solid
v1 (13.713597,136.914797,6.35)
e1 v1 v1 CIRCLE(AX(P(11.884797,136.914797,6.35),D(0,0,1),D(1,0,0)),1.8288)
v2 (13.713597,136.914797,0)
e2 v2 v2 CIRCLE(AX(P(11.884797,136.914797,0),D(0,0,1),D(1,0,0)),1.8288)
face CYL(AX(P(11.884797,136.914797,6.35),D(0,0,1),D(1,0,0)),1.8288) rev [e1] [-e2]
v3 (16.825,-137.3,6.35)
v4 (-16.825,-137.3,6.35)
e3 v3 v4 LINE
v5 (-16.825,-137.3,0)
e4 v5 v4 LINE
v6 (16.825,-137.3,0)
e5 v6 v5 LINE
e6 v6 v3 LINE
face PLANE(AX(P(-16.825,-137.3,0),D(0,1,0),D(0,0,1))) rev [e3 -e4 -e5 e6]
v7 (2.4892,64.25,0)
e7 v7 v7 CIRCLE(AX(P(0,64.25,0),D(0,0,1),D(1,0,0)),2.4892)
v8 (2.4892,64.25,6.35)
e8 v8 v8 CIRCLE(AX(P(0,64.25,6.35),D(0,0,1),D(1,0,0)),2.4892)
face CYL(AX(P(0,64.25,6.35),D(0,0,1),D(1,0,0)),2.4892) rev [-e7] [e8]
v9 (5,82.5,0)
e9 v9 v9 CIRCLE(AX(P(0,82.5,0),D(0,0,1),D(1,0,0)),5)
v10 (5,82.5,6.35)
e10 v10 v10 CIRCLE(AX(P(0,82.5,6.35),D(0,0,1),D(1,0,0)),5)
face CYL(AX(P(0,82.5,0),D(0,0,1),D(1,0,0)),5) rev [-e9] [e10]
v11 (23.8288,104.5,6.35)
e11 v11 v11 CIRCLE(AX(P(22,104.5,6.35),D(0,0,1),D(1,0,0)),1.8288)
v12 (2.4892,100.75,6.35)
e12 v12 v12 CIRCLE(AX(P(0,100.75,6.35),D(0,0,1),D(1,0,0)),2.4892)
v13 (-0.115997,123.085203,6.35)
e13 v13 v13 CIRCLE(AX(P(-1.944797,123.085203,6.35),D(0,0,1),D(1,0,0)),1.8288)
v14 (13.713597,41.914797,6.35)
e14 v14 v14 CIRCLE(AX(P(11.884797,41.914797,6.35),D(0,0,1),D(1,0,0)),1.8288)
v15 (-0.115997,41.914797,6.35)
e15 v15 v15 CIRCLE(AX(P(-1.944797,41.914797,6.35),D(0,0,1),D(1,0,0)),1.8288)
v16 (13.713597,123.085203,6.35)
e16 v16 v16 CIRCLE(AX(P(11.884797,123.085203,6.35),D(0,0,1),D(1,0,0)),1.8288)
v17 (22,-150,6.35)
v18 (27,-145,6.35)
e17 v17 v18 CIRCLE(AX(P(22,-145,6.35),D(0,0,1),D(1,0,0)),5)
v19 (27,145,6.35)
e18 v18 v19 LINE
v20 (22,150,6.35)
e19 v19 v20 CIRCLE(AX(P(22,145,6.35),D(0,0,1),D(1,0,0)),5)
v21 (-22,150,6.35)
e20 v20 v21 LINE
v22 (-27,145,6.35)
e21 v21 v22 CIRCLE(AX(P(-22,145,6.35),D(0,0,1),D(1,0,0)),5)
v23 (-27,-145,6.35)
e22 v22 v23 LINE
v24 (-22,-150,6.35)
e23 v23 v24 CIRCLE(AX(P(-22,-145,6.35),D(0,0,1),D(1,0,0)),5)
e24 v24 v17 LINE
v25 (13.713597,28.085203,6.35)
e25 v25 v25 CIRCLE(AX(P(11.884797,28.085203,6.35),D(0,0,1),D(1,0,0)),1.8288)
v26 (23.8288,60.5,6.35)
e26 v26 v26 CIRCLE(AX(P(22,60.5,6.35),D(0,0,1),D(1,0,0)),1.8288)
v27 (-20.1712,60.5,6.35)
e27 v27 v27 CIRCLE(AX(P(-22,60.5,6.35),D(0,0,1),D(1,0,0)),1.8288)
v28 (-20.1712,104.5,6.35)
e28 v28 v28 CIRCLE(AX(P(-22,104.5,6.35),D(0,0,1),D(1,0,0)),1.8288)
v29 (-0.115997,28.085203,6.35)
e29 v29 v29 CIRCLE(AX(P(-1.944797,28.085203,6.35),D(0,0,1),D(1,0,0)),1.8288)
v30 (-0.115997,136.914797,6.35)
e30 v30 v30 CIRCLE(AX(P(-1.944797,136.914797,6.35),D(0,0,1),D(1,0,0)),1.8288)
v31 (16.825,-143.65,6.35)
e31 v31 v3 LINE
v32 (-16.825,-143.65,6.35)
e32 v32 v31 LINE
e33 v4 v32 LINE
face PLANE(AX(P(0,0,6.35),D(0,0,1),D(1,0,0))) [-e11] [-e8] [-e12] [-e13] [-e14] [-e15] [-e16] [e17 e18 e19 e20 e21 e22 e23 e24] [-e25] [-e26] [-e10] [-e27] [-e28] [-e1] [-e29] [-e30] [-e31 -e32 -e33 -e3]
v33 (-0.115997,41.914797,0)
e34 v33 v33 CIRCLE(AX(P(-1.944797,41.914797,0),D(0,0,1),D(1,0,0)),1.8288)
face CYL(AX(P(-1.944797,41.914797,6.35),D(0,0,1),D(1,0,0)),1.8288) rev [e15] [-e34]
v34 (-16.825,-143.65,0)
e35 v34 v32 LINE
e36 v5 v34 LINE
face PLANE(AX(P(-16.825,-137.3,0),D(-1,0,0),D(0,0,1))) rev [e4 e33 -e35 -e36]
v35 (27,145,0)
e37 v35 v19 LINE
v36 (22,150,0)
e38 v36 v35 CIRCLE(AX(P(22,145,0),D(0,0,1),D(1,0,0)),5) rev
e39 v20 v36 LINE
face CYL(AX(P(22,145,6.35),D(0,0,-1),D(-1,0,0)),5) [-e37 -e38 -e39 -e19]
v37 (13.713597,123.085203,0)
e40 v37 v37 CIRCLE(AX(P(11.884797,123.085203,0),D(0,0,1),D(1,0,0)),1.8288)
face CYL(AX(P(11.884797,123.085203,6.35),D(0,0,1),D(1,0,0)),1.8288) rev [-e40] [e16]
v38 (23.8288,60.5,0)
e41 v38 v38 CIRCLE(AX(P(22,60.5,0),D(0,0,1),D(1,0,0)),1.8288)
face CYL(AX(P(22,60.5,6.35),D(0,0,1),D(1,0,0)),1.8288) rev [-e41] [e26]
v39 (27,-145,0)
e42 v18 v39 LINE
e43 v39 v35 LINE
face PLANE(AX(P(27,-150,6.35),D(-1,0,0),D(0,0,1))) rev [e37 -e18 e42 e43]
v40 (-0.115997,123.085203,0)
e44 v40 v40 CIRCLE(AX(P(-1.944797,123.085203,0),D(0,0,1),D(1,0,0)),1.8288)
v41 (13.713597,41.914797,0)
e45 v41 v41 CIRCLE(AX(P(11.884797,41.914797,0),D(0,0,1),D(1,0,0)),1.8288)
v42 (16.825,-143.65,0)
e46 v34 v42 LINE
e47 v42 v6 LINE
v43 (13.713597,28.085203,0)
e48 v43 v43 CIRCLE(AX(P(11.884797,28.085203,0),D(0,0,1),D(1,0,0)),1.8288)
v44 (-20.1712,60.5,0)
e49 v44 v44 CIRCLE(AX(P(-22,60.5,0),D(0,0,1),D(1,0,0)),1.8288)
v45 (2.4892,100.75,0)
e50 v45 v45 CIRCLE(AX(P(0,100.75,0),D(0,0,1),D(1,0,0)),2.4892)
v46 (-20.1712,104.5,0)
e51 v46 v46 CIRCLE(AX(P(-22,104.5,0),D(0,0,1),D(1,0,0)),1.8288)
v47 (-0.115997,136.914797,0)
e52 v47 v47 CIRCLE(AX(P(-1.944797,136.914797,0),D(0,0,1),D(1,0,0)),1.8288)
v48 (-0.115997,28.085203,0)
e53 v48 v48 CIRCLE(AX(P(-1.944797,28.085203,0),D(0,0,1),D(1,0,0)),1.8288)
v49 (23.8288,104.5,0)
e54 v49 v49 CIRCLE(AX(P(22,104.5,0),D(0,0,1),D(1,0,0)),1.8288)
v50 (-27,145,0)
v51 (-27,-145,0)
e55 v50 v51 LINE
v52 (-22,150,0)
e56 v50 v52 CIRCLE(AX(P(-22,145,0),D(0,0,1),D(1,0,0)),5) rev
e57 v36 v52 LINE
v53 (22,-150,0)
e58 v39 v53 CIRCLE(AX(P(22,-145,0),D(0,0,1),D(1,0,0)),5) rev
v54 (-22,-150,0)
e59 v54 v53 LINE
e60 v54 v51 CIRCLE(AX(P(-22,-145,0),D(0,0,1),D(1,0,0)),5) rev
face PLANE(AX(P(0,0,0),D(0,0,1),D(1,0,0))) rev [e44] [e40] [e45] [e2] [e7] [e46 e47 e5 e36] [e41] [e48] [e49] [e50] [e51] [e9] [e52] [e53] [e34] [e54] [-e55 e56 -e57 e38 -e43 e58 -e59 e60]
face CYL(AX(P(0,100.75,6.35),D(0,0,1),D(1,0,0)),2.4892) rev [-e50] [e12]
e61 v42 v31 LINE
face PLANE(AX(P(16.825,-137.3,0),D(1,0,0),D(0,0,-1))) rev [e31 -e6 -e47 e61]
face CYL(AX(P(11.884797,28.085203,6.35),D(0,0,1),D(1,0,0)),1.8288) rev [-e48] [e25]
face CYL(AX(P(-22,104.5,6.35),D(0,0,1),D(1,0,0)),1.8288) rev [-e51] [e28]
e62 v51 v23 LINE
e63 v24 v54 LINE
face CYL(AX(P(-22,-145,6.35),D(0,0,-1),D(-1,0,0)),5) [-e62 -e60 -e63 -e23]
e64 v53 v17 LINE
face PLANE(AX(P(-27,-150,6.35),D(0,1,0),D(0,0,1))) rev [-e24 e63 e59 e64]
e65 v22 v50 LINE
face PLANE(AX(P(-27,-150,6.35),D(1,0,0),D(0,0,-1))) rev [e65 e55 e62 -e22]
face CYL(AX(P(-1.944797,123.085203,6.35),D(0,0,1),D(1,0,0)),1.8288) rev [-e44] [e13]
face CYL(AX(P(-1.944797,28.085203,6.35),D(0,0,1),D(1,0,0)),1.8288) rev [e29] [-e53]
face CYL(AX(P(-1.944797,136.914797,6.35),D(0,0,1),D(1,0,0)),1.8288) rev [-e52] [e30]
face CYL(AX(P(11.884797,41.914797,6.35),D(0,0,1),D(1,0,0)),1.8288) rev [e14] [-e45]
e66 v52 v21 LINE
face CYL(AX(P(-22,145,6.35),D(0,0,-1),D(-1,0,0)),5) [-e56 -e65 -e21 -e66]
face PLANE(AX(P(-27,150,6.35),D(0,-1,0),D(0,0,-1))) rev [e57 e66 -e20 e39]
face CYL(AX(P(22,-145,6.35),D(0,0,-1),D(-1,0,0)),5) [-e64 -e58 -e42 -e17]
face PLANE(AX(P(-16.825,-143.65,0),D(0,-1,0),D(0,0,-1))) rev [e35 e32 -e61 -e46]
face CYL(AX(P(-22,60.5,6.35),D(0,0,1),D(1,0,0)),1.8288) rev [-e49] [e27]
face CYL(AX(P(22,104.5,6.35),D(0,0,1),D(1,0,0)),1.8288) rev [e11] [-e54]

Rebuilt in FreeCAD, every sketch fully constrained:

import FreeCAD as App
import Part
import Sketcher

V = App.Vector
Q = App.Units.Quantity


def edges_at(feature, points):
    """Names of the edges that pass closest to the given points."""
    edges = feature.Shape.Edges
    near = lambda p: min(range(len(edges)), key=lambda i: edges[i].distToShape(Part.Vertex(*p))[0])
    return sorted({f"Edge{near(p) + 1}" for p in points})


def add_polygon(sketch, points):
    """Adds a closed chain of lines whose ends are joined by coincident constraints."""
    first, n = sketch.GeometryCount, len(points)
    for a, b in zip(points, points[1:] + points[:1]):
        sketch.addGeometry(Part.LineSegment(App.Vector(*a, 0), App.Vector(*b, 0)), False)
    for i in range(n):
        sketch.addConstraint(Sketcher.Constraint("Coincident", first + i, 2, first + (i + 1) % n, 1))

doc = App.newDocument("Part")
body = doc.addObject("PartDesign::Body", "Body")

# Sketch on XY plane
sketch1 = body.newObject("Sketcher::SketchObject", "Sketch")
sketch1.AttachmentSupport = (doc.getObject("XY_Plane"), [""])
sketch1.MapMode = "FlatFace"
add_polygon(sketch1, [(-27, 150), (-27, -150), (27, -150), (27, 150)])  # lines 0-3
sketch1.addConstraint(Sketcher.Constraint("Vertical", 0))
sketch1.addConstraint(Sketcher.Constraint("Horizontal", 1))
sketch1.addConstraint(Sketcher.Constraint("Vertical", 2))
sketch1.addConstraint(Sketcher.Constraint("Horizontal", 3))
sketch1.addConstraint(Sketcher.Constraint("Symmetric", 0, 2, 2, 2, -1, 1))
sketch1.addConstraint(Sketcher.Constraint("DistanceX", 1, 1, 1, 2, Q("54 mm")))
sketch1.addConstraint(Sketcher.Constraint("DistanceY", 0, 2, 0, 1, Q("300 mm")))
pad1 = body.newObject("PartDesign::Pad", "Pad")
pad1.Profile = sketch1
pad1.Length = 6.35
doc.recompute()

fillet = body.newObject("PartDesign::Fillet", "Fillet")
fillet.Base = (pad1, edges_at(pad1, [
    (-27, -150, 3.175),
    (-27, 150, 3.175),
    (27, 150, 3.175),
    (27, -150, 3.175),
]))
fillet.Radius = 5

# Sketch on XY plane
sketch2 = body.newObject("Sketcher::SketchObject", "Sketch001")
sketch2.AttachmentSupport = (doc.getObject("XY_Plane"), [""])
sketch2.MapMode = "FlatFace"
sketch2.AttachmentOffset = App.Placement(V(0, 0, 6.35), App.Rotation())
sketch2.addGeometry(Part.Circle(V(0, 82, 0), V(0, 0, 1), 5), False)
sketch2.addConstraint(Sketcher.Constraint("PointOnObject", 0, 3, -2))
sketch2.addConstraint(Sketcher.Constraint("Diameter", 0, Q("10 mm")))
sketch2.addConstraint(Sketcher.Constraint("DistanceY", -1, 1, 0, 3, Q("82.5 mm")))
pocket1 = body.newObject("PartDesign::Pocket", "Pocket")
pocket1.Profile = sketch2
pocket1.Type = "ThroughAll"

# Sketch on XY plane
sketch3 = body.newObject("Sketcher::SketchObject", "Sketch002")
sketch3.AttachmentSupport = (doc.getObject("XY_Plane"), [""])
sketch3.MapMode = "FlatFace"
sketch3.AttachmentOffset = App.Placement(V(0, 0, 6.35), App.Rotation())
sketch3.addGeometry(Part.Circle(V(-22, 104.5, 0), V(0, 0, 1), 1.8), False)
sketch3.addGeometry(Part.Circle(V(-22, 60.5, 0), V(0, 0, 1), 1.8), False)
sketch3.addGeometry(Part.Circle(V(22, 60.5, 0), V(0, 0, 1), 1.8), False)
sketch3.addGeometry(Part.Circle(V(22, 104.5, 0), V(0, 0, 1), 1.8), False)
sketch3.addGeometry(Part.Circle(V(-1.9, 123.1, 0), V(0, 0, 1), 1.8), False)
sketch3.addGeometry(Part.Circle(V(-1.9, 136.9, 0), V(0, 0, 1), 1.8), False)
sketch3.addGeometry(Part.Circle(V(11.9, 136.9, 0), V(0, 0, 1), 1.8), False)
sketch3.addGeometry(Part.Circle(V(11.9, 123.1, 0), V(0, 0, 1), 1.8), False)
sketch3.addGeometry(Part.Circle(V(-1.9, 41.9, 0), V(0, 0, 1), 1.8), False)
sketch3.addGeometry(Part.Circle(V(11.9, 41.9, 0), V(0, 0, 1), 1.8), False)
sketch3.addGeometry(Part.Circle(V(11.9, 28.1, 0), V(0, 0, 1), 1.8), False)
sketch3.addGeometry(Part.Circle(V(-1.9, 28.1, 0), V(0, 0, 1), 1.8), False)
sketch3.addConstraint(Sketcher.Constraint("Equal", 0, 1))
sketch3.addConstraint(Sketcher.Constraint("Equal", 1, 2))
sketch3.addConstraint(Sketcher.Constraint("Equal", 2, 3))
sketch3.addConstraint(Sketcher.Constraint("Equal", 3, 4))
sketch3.addConstraint(Sketcher.Constraint("Equal", 4, 5))
sketch3.addConstraint(Sketcher.Constraint("Equal", 5, 6))
sketch3.addConstraint(Sketcher.Constraint("Equal", 6, 7))
sketch3.addConstraint(Sketcher.Constraint("Equal", 7, 8))
sketch3.addConstraint(Sketcher.Constraint("Equal", 8, 9))
sketch3.addConstraint(Sketcher.Constraint("Equal", 9, 10))
sketch3.addConstraint(Sketcher.Constraint("Equal", 10, 11))
sketch3.addConstraint(Sketcher.Constraint("Symmetric", 1, 3, 2, 3, -2))
sketch3.addConstraint(Sketcher.Constraint("Symmetric", 0, 3, 3, 3, -2))
sketch3.addConstraint(Sketcher.Constraint("Horizontal", 5, 3, 6, 3))
sketch3.addConstraint(Sketcher.Constraint("Horizontal", 4, 3, 7, 3))
sketch3.addConstraint(Sketcher.Constraint("Horizontal", 8, 3, 9, 3))
sketch3.addConstraint(Sketcher.Constraint("Horizontal", 10, 3, 11, 3))
sketch3.addConstraint(Sketcher.Constraint("Vertical", 0, 3, 1, 3))
sketch3.addConstraint(Sketcher.Constraint("Vertical", 4, 3, 5, 3))
sketch3.addConstraint(Sketcher.Constraint("Vertical", 6, 3, 7, 3))
sketch3.addConstraint(Sketcher.Constraint("Vertical", 5, 3, 8, 3))
sketch3.addConstraint(Sketcher.Constraint("Vertical", 7, 3, 9, 3))
sketch3.addConstraint(Sketcher.Constraint("Vertical", 9, 3, 10, 3))
sketch3.addConstraint(Sketcher.Constraint("Vertical", 8, 3, 11, 3))
sketch3.addConstraint(Sketcher.Constraint("DistanceX", 0, 3, -1, 1, Q("22 mm")))
sketch3.addConstraint(Sketcher.Constraint("DistanceY", 1, 3, 0, 3, Q("44 mm")))
sketch3.addConstraint(Sketcher.Constraint("Diameter", 0, Q("3.6576 mm")))
sketch3.addConstraint(Sketcher.Constraint("DistanceY", -1, 1, 0, 3, Q("104.5 mm")))
sketch3.addConstraint(Sketcher.Constraint("DistanceX", 4, 3, -1, 1, Q("1.944797 mm")))
sketch3.addConstraint(Sketcher.Constraint("DistanceY", -1, 1, 4, 3, Q("123.085203 mm")))
sketch3.addConstraint(Sketcher.Constraint("DistanceY", -1, 1, 5, 3, Q("136.914797 mm")))
sketch3.addConstraint(Sketcher.Constraint("DistanceX", -1, 1, 6, 3, Q("11.884797 mm")))
sketch3.addConstraint(Sketcher.Constraint("DistanceY", -1, 1, 8, 3, Q("41.914797 mm")))
sketch3.addConstraint(Sketcher.Constraint("DistanceY", -1, 1, 10, 3, Q("28.085203 mm")))
doc.recompute()
hole = body.newObject("PartDesign::Hole", "Hole")
hole.Profile = sketch3
hole.ThreadType = "None"
hole.Diameter = 3.6576
hole.DepthType = "ThroughAll"

# Sketch on XY plane
sketch4 = body.newObject("Sketcher::SketchObject", "Sketch003")
sketch4.AttachmentSupport = (doc.getObject("XY_Plane"), [""])
sketch4.MapMode = "FlatFace"
sketch4.AttachmentOffset = App.Placement(V(0, 0, 6.35), App.Rotation())
add_polygon(sketch4, [(-17, -137), (-17, -144), (17, -144), (17, -137)])  # lines 0-3
sketch4.addConstraint(Sketcher.Constraint("Vertical", 0))
sketch4.addConstraint(Sketcher.Constraint("Horizontal", 1))
sketch4.addConstraint(Sketcher.Constraint("Vertical", 2))
sketch4.addConstraint(Sketcher.Constraint("Horizontal", 3))
sketch4.addConstraint(Sketcher.Constraint("DistanceX", 1, 1, 1, 2, Q("33.65 mm")))
sketch4.addConstraint(Sketcher.Constraint("DistanceY", 0, 2, 0, 1, Q("6.35 mm")))
sketch4.addConstraint(Sketcher.Constraint("DistanceY", 2, 2, -1, 1, Q("137.3 mm")))
sketch4.addConstraint(Sketcher.Constraint("DistanceX", 0, 2, -1, 1, Q("16.825 mm")))
pocket2 = body.newObject("PartDesign::Pocket", "Pocket001")
pocket2.Profile = sketch4
pocket2.Type = "ThroughAll"

# Sketch on XY plane
sketch5 = body.newObject("Sketcher::SketchObject", "Sketch004")
sketch5.AttachmentSupport = (doc.getObject("XY_Plane"), [""])
sketch5.MapMode = "FlatFace"
sketch5.AttachmentOffset = App.Placement(V(0, 0, 6.35), App.Rotation())
sketch5.addGeometry(Part.Circle(V(0, 64.2, 0), V(0, 0, 1), 2.5), False)
sketch5.addGeometry(Part.Circle(V(0, 100.8, 0), V(0, 0, 1), 2.5), False)
sketch5.addConstraint(Sketcher.Constraint("Equal", 0, 1))
sketch5.addConstraint(Sketcher.Constraint("PointOnObject", 0, 3, -2))
sketch5.addConstraint(Sketcher.Constraint("PointOnObject", 1, 3, -2))
sketch5.addConstraint(Sketcher.Constraint("Diameter", 0, Q("4.9784 mm")))
sketch5.addConstraint(Sketcher.Constraint("DistanceY", 0, 3, 1, 3, Q("36.5 mm")))
sketch5.addConstraint(Sketcher.Constraint("DistanceY", -1, 1, 0, 3, Q("64.25 mm")))
doc.recompute()
hole2 = body.newObject("PartDesign::Hole", "Hole001")
hole2.Profile = sketch5
hole2.ThreadType = "None"
hole2.Diameter = 4.9784
hole2.DepthType = "ThroughAll"

doc.recompute()
